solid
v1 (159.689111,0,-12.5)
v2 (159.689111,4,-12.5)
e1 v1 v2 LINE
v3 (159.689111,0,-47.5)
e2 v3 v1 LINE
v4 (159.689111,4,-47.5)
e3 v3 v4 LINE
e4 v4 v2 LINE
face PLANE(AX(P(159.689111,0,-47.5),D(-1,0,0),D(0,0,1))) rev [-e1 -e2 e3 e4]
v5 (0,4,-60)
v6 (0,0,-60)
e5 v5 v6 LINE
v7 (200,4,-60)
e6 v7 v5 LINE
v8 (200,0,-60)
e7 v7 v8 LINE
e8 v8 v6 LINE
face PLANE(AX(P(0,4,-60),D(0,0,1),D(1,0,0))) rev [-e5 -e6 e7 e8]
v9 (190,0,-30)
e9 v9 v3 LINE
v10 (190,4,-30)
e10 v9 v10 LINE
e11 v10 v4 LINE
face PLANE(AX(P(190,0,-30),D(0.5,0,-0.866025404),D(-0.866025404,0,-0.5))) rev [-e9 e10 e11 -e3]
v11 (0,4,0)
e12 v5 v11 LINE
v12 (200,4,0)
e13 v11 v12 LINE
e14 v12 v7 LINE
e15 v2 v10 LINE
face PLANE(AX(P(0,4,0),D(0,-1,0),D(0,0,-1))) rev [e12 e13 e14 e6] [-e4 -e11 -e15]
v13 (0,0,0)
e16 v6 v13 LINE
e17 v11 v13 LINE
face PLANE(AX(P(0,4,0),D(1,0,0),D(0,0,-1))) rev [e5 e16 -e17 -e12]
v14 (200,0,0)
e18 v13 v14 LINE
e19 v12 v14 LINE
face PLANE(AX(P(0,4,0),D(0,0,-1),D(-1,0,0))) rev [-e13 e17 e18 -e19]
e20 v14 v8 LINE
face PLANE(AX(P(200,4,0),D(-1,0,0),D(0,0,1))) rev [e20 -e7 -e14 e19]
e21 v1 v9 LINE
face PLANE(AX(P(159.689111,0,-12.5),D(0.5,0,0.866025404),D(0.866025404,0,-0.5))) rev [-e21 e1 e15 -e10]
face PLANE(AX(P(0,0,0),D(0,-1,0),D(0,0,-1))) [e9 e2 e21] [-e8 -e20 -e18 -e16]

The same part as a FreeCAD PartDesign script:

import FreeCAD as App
import Part
import Sketcher
Q = App.Units.Quantity

doc = App.newDocument("Part")
body = doc.addObject("PartDesign::Body", "Body")

# Sketch on XZ plane
sketch1 = body.newObject("Sketcher::SketchObject", "Sketch")
sketch1.AttachmentSupport = (doc.getObject("XZ_Plane"), [""])
sketch1.MapMode = "FlatFace"
sketch1.addGeometry([
    Part.LineSegment(App.Vector(0, -60, 0), App.Vector(0, 0, 0)),
    Part.LineSegment(App.Vector(0, 0, 0), App.Vector(200, 0, 0)),
    Part.LineSegment(App.Vector(200, 0, 0), App.Vector(200, -60, 0)),
    Part.LineSegment(App.Vector(200, -60, 0), App.Vector(0, -60, 0)),
], False)
sketch1.addConstraint([
    Sketcher.Constraint("Coincident", 0, 2, 1, 1),
    Sketcher.Constraint("Coincident", 1, 2, 2, 1),
    Sketcher.Constraint("Coincident", 2, 2, 3, 1),
    Sketcher.Constraint("Coincident", 3, 2, 0, 1),
    Sketcher.Constraint("Vertical", 0),
    Sketcher.Constraint("Horizontal", 1),
    Sketcher.Constraint("Vertical", 2),
    Sketcher.Constraint("Horizontal", 3),
    Sketcher.Constraint("Coincident", 0, 2, -1, 1),
    Sketcher.Constraint("DistanceX", 1, 1, 1, 2, Q("200 mm")),
    Sketcher.Constraint("DistanceY", 0, 1, 0, 2, Q("60 mm")),
])
pad1 = body.newObject("PartDesign::Pad", "Pad")
pad1.Profile = sketch1
pad1.Length = 4
pad1.Reversed = True

# Sketch on XZ plane
sketch2 = body.newObject("Sketcher::SketchObject", "Sketch001")
sketch2.AttachmentSupport = (doc.getObject("XZ_Plane"), [""])
sketch2.MapMode = "FlatFace"
sketch2.AttachmentOffset = App.Placement(App.Vector(0, 0, -4), App.Rotation())
sketch2.addGeometry([
    Part.LineSegment(App.Vector(190, -30, 0), App.Vector(160, -48, 0)),
    Part.LineSegment(App.Vector(160, -48, 0), App.Vector(160, -12, 0)),
    Part.LineSegment(App.Vector(160, -12, 0), App.Vector(190, -30, 0)),
], False)
sketch2.addConstraint([
    Sketcher.Constraint("Coincident", 0, 2, 1, 1),
    Sketcher.Constraint("Coincident", 1, 2, 2, 1),
    Sketcher.Constraint("Coincident", 2, 2, 0, 1),
    Sketcher.Constraint("Vertical", 1),
    Sketcher.Constraint("Equal", 0, 2),
    Sketcher.Constraint("DistanceY", 1, 1, 1, 2, Q("35 mm")),
    Sketcher.Constraint("Angle", 0, Q("-150 deg")),
    Sketcher.Constraint("DistanceX", -1, 1, 2, 2, Q("190 mm")),
    Sketcher.Constraint("DistanceY", 2, 2, -1, 1, Q("30 mm")),
])
pocket1 = body.newObject("PartDesign::Pocket", "Pocket")
pocket1.Profile = sketch2
pocket1.Type = "ThroughAll"
pocket1.Reversed = True

doc.recompute()
